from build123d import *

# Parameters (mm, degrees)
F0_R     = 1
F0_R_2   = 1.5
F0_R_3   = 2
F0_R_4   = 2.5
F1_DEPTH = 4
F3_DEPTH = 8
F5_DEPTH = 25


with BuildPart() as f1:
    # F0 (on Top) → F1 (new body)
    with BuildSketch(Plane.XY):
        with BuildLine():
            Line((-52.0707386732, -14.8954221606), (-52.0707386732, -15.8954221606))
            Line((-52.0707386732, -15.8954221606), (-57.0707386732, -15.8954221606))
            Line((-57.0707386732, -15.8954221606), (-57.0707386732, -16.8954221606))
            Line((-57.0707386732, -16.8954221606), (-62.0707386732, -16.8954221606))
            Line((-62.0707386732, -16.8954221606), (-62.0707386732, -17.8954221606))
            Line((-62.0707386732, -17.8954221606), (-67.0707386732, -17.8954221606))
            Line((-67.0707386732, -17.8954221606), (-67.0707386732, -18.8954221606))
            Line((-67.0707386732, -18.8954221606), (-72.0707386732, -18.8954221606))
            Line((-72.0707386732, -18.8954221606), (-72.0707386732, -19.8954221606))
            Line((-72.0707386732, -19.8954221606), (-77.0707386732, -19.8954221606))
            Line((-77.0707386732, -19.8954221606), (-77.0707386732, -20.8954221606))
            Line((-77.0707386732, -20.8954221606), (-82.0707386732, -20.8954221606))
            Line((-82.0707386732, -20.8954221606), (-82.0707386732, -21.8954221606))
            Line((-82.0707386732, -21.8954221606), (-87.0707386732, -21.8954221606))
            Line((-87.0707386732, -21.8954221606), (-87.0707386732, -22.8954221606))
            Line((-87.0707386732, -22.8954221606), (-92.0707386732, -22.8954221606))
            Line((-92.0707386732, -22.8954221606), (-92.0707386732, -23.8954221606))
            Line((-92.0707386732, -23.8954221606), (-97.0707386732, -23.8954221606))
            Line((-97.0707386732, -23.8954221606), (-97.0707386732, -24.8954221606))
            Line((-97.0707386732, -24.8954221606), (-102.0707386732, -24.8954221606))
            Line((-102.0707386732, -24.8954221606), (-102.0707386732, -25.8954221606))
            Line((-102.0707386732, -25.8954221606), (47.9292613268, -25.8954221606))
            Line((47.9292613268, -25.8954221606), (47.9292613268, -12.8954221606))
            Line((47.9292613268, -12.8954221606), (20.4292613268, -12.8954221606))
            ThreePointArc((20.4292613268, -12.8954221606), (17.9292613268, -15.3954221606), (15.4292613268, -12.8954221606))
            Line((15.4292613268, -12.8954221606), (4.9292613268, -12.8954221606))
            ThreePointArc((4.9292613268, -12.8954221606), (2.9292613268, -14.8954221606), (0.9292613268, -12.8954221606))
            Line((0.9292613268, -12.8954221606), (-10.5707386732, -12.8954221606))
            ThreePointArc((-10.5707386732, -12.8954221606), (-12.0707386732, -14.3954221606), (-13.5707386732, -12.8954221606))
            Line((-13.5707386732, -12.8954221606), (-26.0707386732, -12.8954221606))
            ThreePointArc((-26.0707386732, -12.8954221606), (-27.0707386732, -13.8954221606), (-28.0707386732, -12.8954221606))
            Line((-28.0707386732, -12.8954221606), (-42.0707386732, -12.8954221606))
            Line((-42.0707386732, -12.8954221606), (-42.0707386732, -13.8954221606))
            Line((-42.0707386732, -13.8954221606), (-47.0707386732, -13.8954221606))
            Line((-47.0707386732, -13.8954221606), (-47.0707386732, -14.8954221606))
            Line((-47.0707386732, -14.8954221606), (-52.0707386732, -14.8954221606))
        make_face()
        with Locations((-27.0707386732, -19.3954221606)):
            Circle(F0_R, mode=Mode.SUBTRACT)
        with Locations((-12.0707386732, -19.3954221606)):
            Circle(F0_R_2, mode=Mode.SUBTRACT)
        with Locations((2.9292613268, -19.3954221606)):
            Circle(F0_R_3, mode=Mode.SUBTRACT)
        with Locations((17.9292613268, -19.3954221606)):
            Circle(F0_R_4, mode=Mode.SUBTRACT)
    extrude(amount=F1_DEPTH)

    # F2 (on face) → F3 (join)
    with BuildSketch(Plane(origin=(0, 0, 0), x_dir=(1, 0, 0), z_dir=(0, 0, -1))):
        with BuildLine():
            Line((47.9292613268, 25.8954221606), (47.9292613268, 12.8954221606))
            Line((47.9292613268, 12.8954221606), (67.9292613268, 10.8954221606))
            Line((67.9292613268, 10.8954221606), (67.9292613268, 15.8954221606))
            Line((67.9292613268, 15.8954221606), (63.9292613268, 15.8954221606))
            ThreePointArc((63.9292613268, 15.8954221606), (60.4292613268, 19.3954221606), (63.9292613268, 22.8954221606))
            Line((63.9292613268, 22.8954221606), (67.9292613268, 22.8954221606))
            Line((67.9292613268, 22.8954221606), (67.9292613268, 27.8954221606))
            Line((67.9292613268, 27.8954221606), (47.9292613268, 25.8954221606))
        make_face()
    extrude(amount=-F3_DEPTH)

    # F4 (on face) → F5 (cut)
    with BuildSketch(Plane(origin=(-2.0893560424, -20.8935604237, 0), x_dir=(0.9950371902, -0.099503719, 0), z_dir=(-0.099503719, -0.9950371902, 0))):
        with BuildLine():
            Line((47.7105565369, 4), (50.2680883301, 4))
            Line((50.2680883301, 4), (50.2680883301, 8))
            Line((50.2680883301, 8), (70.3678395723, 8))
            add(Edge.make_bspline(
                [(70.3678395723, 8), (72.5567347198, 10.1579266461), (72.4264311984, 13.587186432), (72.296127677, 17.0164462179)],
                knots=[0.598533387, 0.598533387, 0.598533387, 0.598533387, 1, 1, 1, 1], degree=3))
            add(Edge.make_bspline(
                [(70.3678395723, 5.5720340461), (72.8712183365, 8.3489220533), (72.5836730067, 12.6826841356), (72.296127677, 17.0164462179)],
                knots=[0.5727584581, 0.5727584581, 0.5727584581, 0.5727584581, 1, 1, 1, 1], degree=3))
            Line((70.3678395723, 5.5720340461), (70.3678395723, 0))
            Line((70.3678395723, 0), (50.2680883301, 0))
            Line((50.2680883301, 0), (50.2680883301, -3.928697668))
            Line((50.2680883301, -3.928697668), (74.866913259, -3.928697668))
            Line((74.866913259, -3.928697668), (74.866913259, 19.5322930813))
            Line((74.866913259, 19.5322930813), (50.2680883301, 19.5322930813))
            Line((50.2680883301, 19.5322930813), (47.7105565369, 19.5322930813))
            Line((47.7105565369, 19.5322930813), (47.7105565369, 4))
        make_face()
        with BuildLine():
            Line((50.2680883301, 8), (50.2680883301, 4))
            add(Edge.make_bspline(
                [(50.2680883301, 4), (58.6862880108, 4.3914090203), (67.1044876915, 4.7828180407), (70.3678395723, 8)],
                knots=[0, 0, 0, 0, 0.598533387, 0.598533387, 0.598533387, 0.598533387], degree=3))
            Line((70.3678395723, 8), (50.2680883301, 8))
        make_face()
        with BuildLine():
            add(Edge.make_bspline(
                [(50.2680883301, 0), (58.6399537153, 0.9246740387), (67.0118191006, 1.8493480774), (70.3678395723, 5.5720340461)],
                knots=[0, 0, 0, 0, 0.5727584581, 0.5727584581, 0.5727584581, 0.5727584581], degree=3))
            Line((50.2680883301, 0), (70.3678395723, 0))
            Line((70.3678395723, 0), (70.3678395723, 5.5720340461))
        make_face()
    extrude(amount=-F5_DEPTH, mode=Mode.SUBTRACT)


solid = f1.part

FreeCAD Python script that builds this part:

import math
import FreeCAD as App
import Part
import Sketcher

V = App.Vector
Q = App.Units.Quantity

doc = App.newDocument("Part")
params = doc.addObject("Spreadsheet::Sheet", "Params")
for row, (alias, value) in enumerate([
    ("sketch1_diameter", "2 mm"),
    ("sketch1_diameter2", "3 mm"),
    ("sketch1_diameter3", "4 mm"),
    ("sketch1_diameter4", "5 mm"),
    ("sketch1_width", "5 mm"),
    ("pad1_length", "4 mm"),
    ("sketch2_radius", "3.5 mm"),
    ("sketch2_width", "4 mm"),
    ("sketch2_height", "13 mm"),
    ("sketch2_height2", "5 mm"),
    ("pad2_length", "8 mm"),
    ("pocket1_length", "25 mm"),
], start=1):
    params.set(f"A{row}", alias)
    params.set(f"B{row}", "=" + value)
    params.setAlias(f"B{row}", alias)

body = doc.addObject("PartDesign::Body", "Body")

# Sketch on XY plane
sketch1 = doc.addObject("Sketcher::SketchObject", "Sketch")
body.addObject(sketch1)
sketch1.AttachmentSupport = (doc.XY_Plane, [""])
sketch1.MapMode = "FlatFace"
sketch1.addGeometry([
    Part.LineSegment(V(-52.1, -14.9, 0), V(-52.1, -15.9, 0)),  # 0
    Part.LineSegment(V(-52.1, -15.9, 0), V(-57.1, -15.9, 0)),  # 1
    Part.LineSegment(V(-57.1, -15.9, 0), V(-57.1, -16.9, 0)),  # 2
    Part.LineSegment(V(-57.1, -16.9, 0), V(-62.1, -16.9, 0)),  # 3
    Part.LineSegment(V(-62.1, -16.9, 0), V(-62.1, -17.9, 0)),  # 4
    Part.LineSegment(V(-62.1, -17.9, 0), V(-67.1, -17.9, 0)),  # 5
    Part.LineSegment(V(-67.1, -17.9, 0), V(-67.1, -18.9, 0)),  # 6
    Part.LineSegment(V(-67.1, -18.9, 0), V(-72.1, -18.9, 0)),  # 7
    Part.LineSegment(V(-72.1, -18.9, 0), V(-72.1, -19.9, 0)),  # 8
    Part.LineSegment(V(-72.1, -19.9, 0), V(-77.1, -19.9, 0)),  # 9
    Part.LineSegment(V(-77.1, -19.9, 0), V(-77.1, -20.9, 0)),  # 10
    Part.LineSegment(V(-77.1, -20.9, 0), V(-82.1, -20.9, 0)),  # 11
    Part.LineSegment(V(-82.1, -20.9, 0), V(-82.1, -21.9, 0)),  # 12
    Part.LineSegment(V(-82.1, -21.9, 0), V(-87.1, -21.9, 0)),  # 13
    Part.LineSegment(V(-87.1, -21.9, 0), V(-87.1, -22.9, 0)),  # 14
    Part.LineSegment(V(-87.1, -22.9, 0), V(-92.1, -22.9, 0)),  # 15
    Part.LineSegment(V(-92.1, -22.9, 0), V(-92.1, -23.9, 0)),  # 16
    Part.LineSegment(V(-92.1, -23.9, 0), V(-97.1, -23.9, 0)),  # 17
    Part.LineSegment(V(-97.1, -23.9, 0), V(-97.1, -24.9, 0)),  # 18
    Part.LineSegment(V(-97.1, -24.9, 0), V(-102.1, -24.9, 0)),  # 19
    Part.LineSegment(V(-102.1, -24.9, 0), V(-102.1, -25.9, 0)),  # 20
    Part.LineSegment(V(-102.1, -25.9, 0), V(47.9, -25.9, 0)),  # 21
    Part.LineSegment(V(47.9, -25.9, 0), V(47.9, -12.9, 0)),  # 22
    Part.LineSegment(V(47.9, -12.9, 0), V(20.4, -12.9, 0)),  # 23
    Part.ArcOfCircle(Part.Circle(V(17.9, -12.9, 0), V(0, 0, 1), 2.5), math.radians(180), math.radians(360)),  # 24
    Part.LineSegment(V(15.4, -12.9, 0), V(4.9, -12.9, 0)),  # 25
    Part.ArcOfCircle(Part.Circle(V(2.9, -12.9, 0), V(0, 0, 1), 2), math.radians(180), math.radians(360)),  # 26
    Part.LineSegment(V(0.9, -12.9, 0), V(-10.6, -12.9, 0)),  # 27
    Part.ArcOfCircle(Part.Circle(V(-12.1, -12.9, 0), V(0, 0, 1), 1.5), math.radians(180), math.radians(360)),  # 28
    Part.LineSegment(V(-13.6, -12.9, 0), V(-26.1, -12.9, 0)),  # 29
    Part.ArcOfCircle(Part.Circle(V(-27.1, -12.9, 0), V(0, 0, 1), 1), math.radians(180), math.radians(360)),  # 30
    Part.LineSegment(V(-28.1, -12.9, 0), V(-42.1, -12.9, 0)),  # 31
    Part.LineSegment(V(-42.1, -12.9, 0), V(-42.1, -13.9, 0)),  # 32
    Part.LineSegment(V(-42.1, -13.9, 0), V(-47.1, -13.9, 0)),  # 33
    Part.LineSegment(V(-47.1, -13.9, 0), V(-47.1, -14.9, 0)),  # 34
    Part.LineSegment(V(-47.1, -14.9, 0), V(-52.1, -14.9, 0)),  # 35
    Part.Circle(V(-27.1, -19.4, 0), V(0, 0, 1), 1),  # 36
    Part.Circle(V(-12.1, -19.4, 0), V(0, 0, 1), 1.5),  # 37
    Part.Circle(V(2.9, -19.4, 0), V(0, 0, 1), 2),  # 38
    Part.Circle(V(17.9, -19.4, 0), V(0, 0, 1), 2.5),  # 39
], False)
sketch1.addConstraint([
    Sketcher.Constraint("Coincident", 0, 2, 1, 1),
    Sketcher.Constraint("Coincident", 1, 2, 2, 1),
    Sketcher.Constraint("Coincident", 2, 2, 3, 1),
    Sketcher.Constraint("Coincident", 3, 2, 4, 1),
    Sketcher.Constraint("Coincident", 4, 2, 5, 1),
    Sketcher.Constraint("Coincident", 5, 2, 6, 1),
    Sketcher.Constraint("Coincident", 6, 2, 7, 1),
    Sketcher.Constraint("Coincident", 7, 2, 8, 1),
    Sketcher.Constraint("Coincident", 8, 2, 9, 1),
    Sketcher.Constraint("Coincident", 9, 2, 10, 1),
    Sketcher.Constraint("Coincident", 10, 2, 11, 1),
    Sketcher.Constraint("Coincident", 11, 2, 12, 1),
    Sketcher.Constraint("Coincident", 12, 2, 13, 1),
    Sketcher.Constraint("Coincident", 13, 2, 14, 1),
    Sketcher.Constraint("Coincident", 14, 2, 15, 1),
    Sketcher.Constraint("Coincident", 15, 2, 16, 1),
    Sketcher.Constraint("Coincident", 16, 2, 17, 1),
    Sketcher.Constraint("Coincident", 17, 2, 18, 1),
    Sketcher.Constraint("Coincident", 18, 2, 19, 1),
    Sketcher.Constraint("Coincident", 19, 2, 20, 1),
    Sketcher.Constraint("Coincident", 20, 2, 21, 1),
    Sketcher.Constraint("Coincident", 21, 2, 22, 1),
    Sketcher.Constraint("Coincident", 22, 2, 23, 1),
    Sketcher.Constraint("Coincident", 23, 2, 24, 2),
    Sketcher.Constraint("Coincident", 24, 1, 25, 1),
    Sketcher.Constraint("Coincident", 25, 2, 26, 2),
    Sketcher.Constraint("Coincident", 26, 1, 27, 1),
    Sketcher.Constraint("Coincident", 27, 2, 28, 2),
    Sketcher.Constraint("Coincident", 28, 1, 29, 1),
    Sketcher.Constraint("Coincident", 29, 2, 30, 2),
    Sketcher.Constraint("Coincident", 30, 1, 31, 1),
    Sketcher.Constraint("Coincident", 31, 2, 32, 1),
    Sketcher.Constraint("Coincident", 32, 2, 33, 1),
    Sketcher.Constraint("Coincident", 33, 2, 34, 1),
    Sketcher.Constraint("Coincident", 34, 2, 35, 1),
    Sketcher.Constraint("Coincident", 35, 2, 0, 1),
    Sketcher.Constraint("Vertical", 0),
    Sketcher.Constraint("Horizontal", 1),
    Sketcher.Constraint("Vertical", 2),
    Sketcher.Constraint("Horizontal", 3),
    Sketcher.Constraint("Vertical", 4),
    Sketcher.Constraint("Horizontal", 5),
    Sketcher.Constraint("Vertical", 6),
    Sketcher.Constraint("Horizontal", 7),
    Sketcher.Constraint("Vertical", 8),
    Sketcher.Constraint("Horizontal", 9),
    Sketcher.Constraint("Vertical", 10),
    Sketcher.Constraint("Horizontal", 11),
    Sketcher.Constraint("Vertical", 12),
    Sketcher.Constraint("Horizontal", 13),
    Sketcher.Constraint("Vertical", 14),
    Sketcher.Constraint("Horizontal", 15),
    Sketcher.Constraint("Vertical", 16),
    Sketcher.Constraint("Horizontal", 17),
    Sketcher.Constraint("Vertical", 18),
    Sketcher.Constraint("Horizontal", 19),
    Sketcher.Constraint("Vertical", 20),
    Sketcher.Constraint("Horizontal", 21),
    Sketcher.Constraint("Vertical", 22),
    Sketcher.Constraint("Horizontal", 23),
    Sketcher.Constraint("Horizontal", 25),
    Sketcher.Constraint("Horizontal", 27),
    Sketcher.Constraint("Horizontal", 29),
    Sketcher.Constraint("Horizontal", 31),
    Sketcher.Constraint("Vertical", 32),
    Sketcher.Constraint("Horizontal", 33),
    Sketcher.Constraint("Vertical", 34),
    Sketcher.Constraint("Horizontal", 35),
    Sketcher.Constraint("Equal", 30, 36),
    Sketcher.Constraint("Equal", 28, 37),
    Sketcher.Constraint("Equal", 26, 38),
    Sketcher.Constraint("Equal", 24, 39),
    Sketcher.Constraint("Horizontal", 24, 3, 26, 3),
    Sketcher.Constraint("Horizontal", 26, 3, 28, 3),
    Sketcher.Constraint("Horizontal", 28, 3, 30, 3),
    Sketcher.Constraint("Horizontal", 36, 3, 37, 3),
    Sketcher.Constraint("Horizontal", 37, 3, 38, 3),
    Sketcher.Constraint("Horizontal", 38, 3, 39, 3),
    Sketcher.Constraint("Horizontal", 30, 3, 22, 2),
    Sketcher.Constraint("Horizontal", 23, 2, 24, 1),
    Sketcher.Constraint("Horizontal", 25, 2, 26, 1),
    Sketcher.Constraint("Horizontal", 27, 2, 28, 1),
    Sketcher.Constraint("Horizontal", 29, 2, 30, 1),
    Sketcher.Constraint("Vertical", 30, 3, 36, 3),
    Sketcher.Constraint("Vertical", 28, 3, 37, 3),
    Sketcher.Constraint("Vertical", 26, 3, 38, 3),
    Sketcher.Constraint("Vertical", 24, 3, 39, 3),
    Sketcher.Constraint("Equal", 1, 3),
    Sketcher.Constraint("Equal", 3, 5),
    Sketcher.Constraint("Equal", 5, 7),
    Sketcher.Constraint("Equal", 7, 9),
    Sketcher.Constraint("Equal", 9, 11),
    Sketcher.Constraint("Equal", 11, 13),
    Sketcher.Constraint("Equal", 13, 15),
    Sketcher.Constraint("Equal", 15, 17),
    Sketcher.Constraint("Equal", 17, 19),
    Sketcher.Constraint("Equal", 19, 33),
    Sketcher.Constraint("Equal", 33, 35),
    Sketcher.Constraint("Equal", 0, 2),
    Sketcher.Constraint("Equal", 2, 4),
    Sketcher.Constraint("Equal", 4, 6),
    Sketcher.Constraint("Equal", 6, 8),
    Sketcher.Constraint("Equal", 8, 10),
    Sketcher.Constraint("Equal", 10, 12),
    Sketcher.Constraint("Equal", 12, 14),
    Sketcher.Constraint("Equal", 14, 16),
    Sketcher.Constraint("Equal", 16, 18),
    Sketcher.Constraint("Equal", 18, 20),
    Sketcher.Constraint("Equal", 20, 32),
    Sketcher.Constraint("Equal", 32, 34),
    Sketcher.Constraint("Diameter", 36, Q("2 mm")),
    Sketcher.Constraint("Diameter", 37, Q("3 mm")),
    Sketcher.Constraint("Diameter", 38, Q("4 mm")),
    Sketcher.Constraint("Diameter", 39, Q("5 mm")),
    Sketcher.Constraint("DistanceX", 1, 2, 1, 1, Q("5 mm")),
    Sketcher.Constraint("DistanceX", 21, 1, 21, 2, Q("150 mm")),
    Sketcher.Constraint("DistanceX", 31, 2, 31, 1, Q("14 mm")),
    Sketcher.Constraint("DistanceY", 0, 2, 0, 1, Q("1 mm")),
    Sketcher.Constraint("DistanceX", 23, 2, 23, 1, Q("27.5 mm")),
    Sketcher.Constraint("DistanceX", 25, 2, 25, 1, Q("10.5 mm")),
    Sketcher.Constraint("DistanceX", 27, 2, 27, 1, Q("11.5 mm")),
    Sketcher.Constraint("DistanceY", 36, 3, 30, 3, Q("6.5 mm")),
    Sketcher.Constraint("DistanceX", -1, 1, 24, 3, Q("17.929261 mm")),
    Sketcher.Constraint("DistanceY", 24, 3, -1, 1, Q("12.895422 mm")),
])
sketch1.setExpression("Constraints[110]", "Params.sketch1_diameter")
sketch1.setExpression("Constraints[111]", "Params.sketch1_diameter2")
sketch1.setExpression("Constraints[112]", "Params.sketch1_diameter3")
sketch1.setExpression("Constraints[113]", "Params.sketch1_diameter4")
sketch1.setExpression("Constraints[114]", "Params.sketch1_width")
pad1 = doc.addObject("PartDesign::Pad", "Pad")
body.addObject(pad1)
pad1.Profile = sketch1
pad1.setExpression("Length", "Params.pad1_length")

# Sketch on XY plane
sketch2 = doc.addObject("Sketcher::SketchObject", "Sketch001")
body.addObject(sketch2)
sketch2.AttachmentSupport = (doc.XY_Plane, [""])
sketch2.MapMode = "FlatFace"
sketch2.addGeometry([
    Part.LineSegment(V(47.9, -25.9, 0), V(47.9, -12.9, 0)),  # 0
    Part.LineSegment(V(47.9, -12.9, 0), V(67.9, -10.9, 0)),  # 1
    Part.LineSegment(V(67.9, -10.9, 0), V(67.9, -15.9, 0)),  # 2
    Part.LineSegment(V(67.9, -15.9, 0), V(63.9, -15.9, 0)),  # 3
    Part.ArcOfCircle(Part.Circle(V(63.9, -19.4, 0), V(0, 0, 1), 3.5), math.radians(90), math.radians(270)),  # 4
    Part.LineSegment(V(63.9, -22.9, 0), V(67.9, -22.9, 0)),  # 5
    Part.LineSegment(V(67.9, -22.9, 0), V(67.9, -27.9, 0)),  # 6
    Part.LineSegment(V(67.9, -27.9, 0), V(47.9, -25.9, 0)),  # 7
], False)
sketch2.addConstraint([
    Sketcher.Constraint("Coincident", 0, 2, 1, 1),
    Sketcher.Constraint("Coincident", 1, 2, 2, 1),
    Sketcher.Constraint("Coincident", 2, 2, 3, 1),
    Sketcher.Constraint("Tangent", 3, 2, 4, 1),
    Sketcher.Constraint("Tangent", 4, 2, 5, 1),
    Sketcher.Constraint("Coincident", 5, 2, 6, 1),
    Sketcher.Constraint("Coincident", 6, 2, 7, 1),
    Sketcher.Constraint("Coincident", 7, 2, 0, 1),
    Sketcher.Constraint("Vertical", 0),
    Sketcher.Constraint("Vertical", 2),
    Sketcher.Constraint("Horizontal", 3),
    Sketcher.Constraint("Horizontal", 5),
    Sketcher.Constraint("Vertical", 6),
    Sketcher.Constraint("Vertical", 2, 2, 5, 2),
    Sketcher.Constraint("Equal", 2, 6),
    Sketcher.Constraint("Equal", 1, 7),
    Sketcher.Constraint("Radius", 4, Q("3.5 mm")),
    Sketcher.Constraint("DistanceX", 3, 2, 3, 1, Q("4 mm")),
    Sketcher.Constraint("DistanceY", 0, 1, 0, 2, Q("13 mm")),
    Sketcher.Constraint("DistanceY", 2, 2, 2, 1, Q("5 mm")),
    Sketcher.Constraint("DistanceX", 0, 2, 4, 3, Q("16 mm")),
    Sketcher.Constraint("DistanceX", -1, 1, 4, 3, Q("63.929261 mm")),
    Sketcher.Constraint("DistanceY", 4, 3, -1, 1, Q("19.395422 mm")),
])
sketch2.setExpression("Constraints[16]", "Params.sketch2_radius")
sketch2.setExpression("Constraints[17]", "Params.sketch2_width")
sketch2.setExpression("Constraints[18]", "Params.sketch2_height")
sketch2.setExpression("Constraints[19]", "Params.sketch2_height2")
pad2 = doc.addObject("PartDesign::Pad", "Pad001")
body.addObject(pad2)
pad2.Profile = sketch2
pad2.setExpression("Length", "Params.pad2_length")

# Sketch on an angled plane
sketch3 = doc.addObject("Sketcher::SketchObject", "Sketch002")
body.addObject(sketch3)
sketch3.Placement = App.Placement(V(-2.089356, -20.89356, 0), App.Rotation(V(0.99503719, -0.099503719, 0), V(0, 0, 1), V(-0.099503719, -0.99503719, 0), "ZXY"))
sketch3.addGeometry([
    Part.LineSegment(V(47.710557, 4, 0), V(50.268088, 4, 0)),  # 0
    Part.BSplineCurve([V(50.268088, 4, 0), V(58.686288, 4.391409, 0), V(67.104488, 4.782818, 0), V(70.36784, 8, 0)], [4, 4], [0, 0.598533387], False, 3, [1, 1, 1, 1], False),  # 1
    Part.BSplineCurve([V(70.36784, 8, 0), V(72.556735, 10.157927, 0), V(72.426431, 13.587186, 0), V(72.296128, 17.016446, 0)], [4, 4], [0.598533387, 1], False, 3, [1, 1, 1, 1], False),  # 2
    Part.BSplineCurve([V(70.36784, 5.572034, 0), V(72.871218, 8.348922, 0), V(72.583673, 12.682684, 0), V(72.296128, 17.016446, 0)], [4, 4], [0.572758458, 1], False, 3, [1, 1, 1, 1], False),  # 3
    Part.BSplineCurve([V(50.268088, 0, 0), V(58.639954, 0.924674, 0), V(67.011819, 1.849348, 0), V(70.36784, 5.572034, 0)], [4, 4], [0, 0.572758458], False, 3, [1, 1, 1, 1], False),  # 4
    Part.LineSegment(V(50.268088, 0, 0), V(50.268088, -3.928698, 0)),  # 5
    Part.LineSegment(V(50.268088, -3.928698, 0), V(74.866913, -3.928698, 0)),  # 6
    Part.LineSegment(V(74.866913, -3.928698, 0), V(74.866913, 19.532293, 0)),  # 7
    Part.LineSegment(V(74.866913, 19.532293, 0), V(47.710557, 19.532293, 0)),  # 8
    Part.LineSegment(V(47.710557, 19.532293, 0), V(47.710557, 4, 0)),  # 9
], False)
sketch3.addConstraint([
    Sketcher.Constraint("Block", 1),
    Sketcher.Constraint("Block", 2),
    Sketcher.Constraint("Block", 3),
    Sketcher.Constraint("Block", 4),
    Sketcher.Constraint("Coincident", 0, 2, 1, 1),
    Sketcher.Constraint("Coincident", 4, 1, 5, 1),
    Sketcher.Constraint("Coincident", 5, 2, 6, 1),
    Sketcher.Constraint("Coincident", 6, 2, 7, 1),
    Sketcher.Constraint("Coincident", 7, 2, 8, 1),
    Sketcher.Constraint("Coincident", 8, 2, 9, 1),
    Sketcher.Constraint("Coincident", 9, 2, 0, 1),
    Sketcher.Constraint("Horizontal", 0),
    Sketcher.Constraint("Vertical", 5),
    Sketcher.Constraint("Horizontal", 6),
    Sketcher.Constraint("Vertical", 7),
    Sketcher.Constraint("Horizontal", 8),
    Sketcher.Constraint("Vertical", 9),
    Sketcher.Constraint("DistanceX", 0, 1, 0, 2, Q("2.557532 mm")),
    Sketcher.Constraint("DistanceY", 7, 1, 7, 2, Q("23.460991 mm")),
    Sketcher.Constraint("DistanceX", 6, 1, 6, 2, Q("24.598825 mm")),
    Sketcher.Constraint("DistanceY", 5, 2, 5, 1, Q("3.928698 mm")),
])
pocket1 = doc.addObject("PartDesign::Pocket", "Pocket")
body.addObject(pocket1)
pocket1.Profile = sketch3
pocket1.setExpression("Length", "Params.pocket1_length")

doc.recompute()
